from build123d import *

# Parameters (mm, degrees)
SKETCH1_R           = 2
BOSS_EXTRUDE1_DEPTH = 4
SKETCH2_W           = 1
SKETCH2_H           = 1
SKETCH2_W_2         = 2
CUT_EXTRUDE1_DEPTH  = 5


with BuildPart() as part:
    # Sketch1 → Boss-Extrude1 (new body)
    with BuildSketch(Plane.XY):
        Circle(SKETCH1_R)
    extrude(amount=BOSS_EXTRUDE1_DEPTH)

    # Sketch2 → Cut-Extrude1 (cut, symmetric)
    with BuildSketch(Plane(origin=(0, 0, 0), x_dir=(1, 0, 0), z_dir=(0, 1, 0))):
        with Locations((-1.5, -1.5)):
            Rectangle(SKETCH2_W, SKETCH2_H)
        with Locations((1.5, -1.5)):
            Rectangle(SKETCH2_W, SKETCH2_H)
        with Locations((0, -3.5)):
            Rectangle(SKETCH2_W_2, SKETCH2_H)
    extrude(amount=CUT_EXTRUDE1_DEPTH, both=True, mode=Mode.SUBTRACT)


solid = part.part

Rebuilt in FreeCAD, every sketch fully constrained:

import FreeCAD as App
import Part
import Sketcher
from FreeCAD import Vector
Q = App.Units.Quantity


def add_polygon(sketch, points):
    """Adds a closed chain of lines whose ends are joined by coincident constraints."""
    first, n = sketch.GeometryCount, len(points)
    for a, b in zip(points, points[1:] + points[:1]):
        sketch.addGeometry(Part.LineSegment(App.Vector(*a, 0), App.Vector(*b, 0)), False)
    for i in range(n):
        sketch.addConstraint(Sketcher.Constraint("Coincident", first + i, 2, first + (i + 1) % n, 1))

doc = App.newDocument("Part")
body = doc.addObject("PartDesign::Body", "Body")

# Sketch on XY plane
sketch1 = body.newObject("Sketcher::SketchObject", "Sketch")
sketch1.AttachmentSupport = (doc.getObject("XY_Plane"), [""])
sketch1.MapMode = "FlatFace"
sketch1.addGeometry(Part.Circle(Vector(0, 0, 0), Vector(0, 0, 1), 2), False)
sketch1.addConstraint(Sketcher.Constraint("Coincident", 0, 3, -1, 1))
sketch1.addConstraint(Sketcher.Constraint("Diameter", 0, Q("4 mm")))
pad1 = body.newObject("PartDesign::Pad", "Pad")
pad1.Profile = sketch1
pad1.Length = 4

# Sketch on XZ plane
sketch2 = body.newObject("Sketcher::SketchObject", "Sketch001")
sketch2.AttachmentSupport = (doc.getObject("XZ_Plane"), [""])
sketch2.MapMode = "FlatFace"
add_polygon(sketch2, [(-2, 1), (-2, 2), (-1, 2), (-1, 1)])  # lines 0-3
add_polygon(sketch2, [(1, 1), (1, 2), (2, 2), (2, 1)])  # lines 4-7
add_polygon(sketch2, [(-1, 3), (-1, 4), (1, 4), (1, 3)])  # lines 8-11
sketch2.addConstraint(Sketcher.Constraint("Vertical", 0))
sketch2.addConstraint(Sketcher.Constraint("Horizontal", 1))
sketch2.addConstraint(Sketcher.Constraint("Vertical", 2))
sketch2.addConstraint(Sketcher.Constraint("Horizontal", 3))
sketch2.addConstraint(Sketcher.Constraint("Vertical", 4))
sketch2.addConstraint(Sketcher.Constraint("Horizontal", 5))
sketch2.addConstraint(Sketcher.Constraint("Vertical", 6))
sketch2.addConstraint(Sketcher.Constraint("Horizontal", 7))
sketch2.addConstraint(Sketcher.Constraint("Vertical", 8))
sketch2.addConstraint(Sketcher.Constraint("Horizontal", 9))
sketch2.addConstraint(Sketcher.Constraint("Vertical", 10))
sketch2.addConstraint(Sketcher.Constraint("Horizontal", 11))
sketch2.addConstraint(Sketcher.Constraint("Symmetric", 1, 2, 4, 2, -2))
sketch2.addConstraint(Sketcher.Constraint("Symmetric", 3, 2, 6, 2, -2))
sketch2.addConstraint(Sketcher.Constraint("Vertical", 2, 2, 8, 2))
sketch2.addConstraint(Sketcher.Constraint("Vertical", 7, 2, 9, 2))
sketch2.addConstraint(Sketcher.Constraint("Equal", 7, 0))
sketch2.addConstraint(Sketcher.Constraint("Equal", 6, 8))
sketch2.addConstraint(Sketcher.Constraint("DistanceX", 1, 1, 1, 2, Q("1 mm")))
sketch2.addConstraint(Sketcher.Constraint("DistanceX", 9, 1, 9, 2, Q("2 mm")))
sketch2.addConstraint(Sketcher.Constraint("DistanceY", -1, 1, 0, 2, Q("2 mm")))
sketch2.addConstraint(Sketcher.Constraint("DistanceY", -1, 1, 8, 2, Q("4 mm")))
pocket1 = body.newObject("PartDesign::Pocket", "Pocket")
pocket1.Profile = sketch2
pocket1.Length = 10
pocket1.Midplane = True

doc.recompute()
